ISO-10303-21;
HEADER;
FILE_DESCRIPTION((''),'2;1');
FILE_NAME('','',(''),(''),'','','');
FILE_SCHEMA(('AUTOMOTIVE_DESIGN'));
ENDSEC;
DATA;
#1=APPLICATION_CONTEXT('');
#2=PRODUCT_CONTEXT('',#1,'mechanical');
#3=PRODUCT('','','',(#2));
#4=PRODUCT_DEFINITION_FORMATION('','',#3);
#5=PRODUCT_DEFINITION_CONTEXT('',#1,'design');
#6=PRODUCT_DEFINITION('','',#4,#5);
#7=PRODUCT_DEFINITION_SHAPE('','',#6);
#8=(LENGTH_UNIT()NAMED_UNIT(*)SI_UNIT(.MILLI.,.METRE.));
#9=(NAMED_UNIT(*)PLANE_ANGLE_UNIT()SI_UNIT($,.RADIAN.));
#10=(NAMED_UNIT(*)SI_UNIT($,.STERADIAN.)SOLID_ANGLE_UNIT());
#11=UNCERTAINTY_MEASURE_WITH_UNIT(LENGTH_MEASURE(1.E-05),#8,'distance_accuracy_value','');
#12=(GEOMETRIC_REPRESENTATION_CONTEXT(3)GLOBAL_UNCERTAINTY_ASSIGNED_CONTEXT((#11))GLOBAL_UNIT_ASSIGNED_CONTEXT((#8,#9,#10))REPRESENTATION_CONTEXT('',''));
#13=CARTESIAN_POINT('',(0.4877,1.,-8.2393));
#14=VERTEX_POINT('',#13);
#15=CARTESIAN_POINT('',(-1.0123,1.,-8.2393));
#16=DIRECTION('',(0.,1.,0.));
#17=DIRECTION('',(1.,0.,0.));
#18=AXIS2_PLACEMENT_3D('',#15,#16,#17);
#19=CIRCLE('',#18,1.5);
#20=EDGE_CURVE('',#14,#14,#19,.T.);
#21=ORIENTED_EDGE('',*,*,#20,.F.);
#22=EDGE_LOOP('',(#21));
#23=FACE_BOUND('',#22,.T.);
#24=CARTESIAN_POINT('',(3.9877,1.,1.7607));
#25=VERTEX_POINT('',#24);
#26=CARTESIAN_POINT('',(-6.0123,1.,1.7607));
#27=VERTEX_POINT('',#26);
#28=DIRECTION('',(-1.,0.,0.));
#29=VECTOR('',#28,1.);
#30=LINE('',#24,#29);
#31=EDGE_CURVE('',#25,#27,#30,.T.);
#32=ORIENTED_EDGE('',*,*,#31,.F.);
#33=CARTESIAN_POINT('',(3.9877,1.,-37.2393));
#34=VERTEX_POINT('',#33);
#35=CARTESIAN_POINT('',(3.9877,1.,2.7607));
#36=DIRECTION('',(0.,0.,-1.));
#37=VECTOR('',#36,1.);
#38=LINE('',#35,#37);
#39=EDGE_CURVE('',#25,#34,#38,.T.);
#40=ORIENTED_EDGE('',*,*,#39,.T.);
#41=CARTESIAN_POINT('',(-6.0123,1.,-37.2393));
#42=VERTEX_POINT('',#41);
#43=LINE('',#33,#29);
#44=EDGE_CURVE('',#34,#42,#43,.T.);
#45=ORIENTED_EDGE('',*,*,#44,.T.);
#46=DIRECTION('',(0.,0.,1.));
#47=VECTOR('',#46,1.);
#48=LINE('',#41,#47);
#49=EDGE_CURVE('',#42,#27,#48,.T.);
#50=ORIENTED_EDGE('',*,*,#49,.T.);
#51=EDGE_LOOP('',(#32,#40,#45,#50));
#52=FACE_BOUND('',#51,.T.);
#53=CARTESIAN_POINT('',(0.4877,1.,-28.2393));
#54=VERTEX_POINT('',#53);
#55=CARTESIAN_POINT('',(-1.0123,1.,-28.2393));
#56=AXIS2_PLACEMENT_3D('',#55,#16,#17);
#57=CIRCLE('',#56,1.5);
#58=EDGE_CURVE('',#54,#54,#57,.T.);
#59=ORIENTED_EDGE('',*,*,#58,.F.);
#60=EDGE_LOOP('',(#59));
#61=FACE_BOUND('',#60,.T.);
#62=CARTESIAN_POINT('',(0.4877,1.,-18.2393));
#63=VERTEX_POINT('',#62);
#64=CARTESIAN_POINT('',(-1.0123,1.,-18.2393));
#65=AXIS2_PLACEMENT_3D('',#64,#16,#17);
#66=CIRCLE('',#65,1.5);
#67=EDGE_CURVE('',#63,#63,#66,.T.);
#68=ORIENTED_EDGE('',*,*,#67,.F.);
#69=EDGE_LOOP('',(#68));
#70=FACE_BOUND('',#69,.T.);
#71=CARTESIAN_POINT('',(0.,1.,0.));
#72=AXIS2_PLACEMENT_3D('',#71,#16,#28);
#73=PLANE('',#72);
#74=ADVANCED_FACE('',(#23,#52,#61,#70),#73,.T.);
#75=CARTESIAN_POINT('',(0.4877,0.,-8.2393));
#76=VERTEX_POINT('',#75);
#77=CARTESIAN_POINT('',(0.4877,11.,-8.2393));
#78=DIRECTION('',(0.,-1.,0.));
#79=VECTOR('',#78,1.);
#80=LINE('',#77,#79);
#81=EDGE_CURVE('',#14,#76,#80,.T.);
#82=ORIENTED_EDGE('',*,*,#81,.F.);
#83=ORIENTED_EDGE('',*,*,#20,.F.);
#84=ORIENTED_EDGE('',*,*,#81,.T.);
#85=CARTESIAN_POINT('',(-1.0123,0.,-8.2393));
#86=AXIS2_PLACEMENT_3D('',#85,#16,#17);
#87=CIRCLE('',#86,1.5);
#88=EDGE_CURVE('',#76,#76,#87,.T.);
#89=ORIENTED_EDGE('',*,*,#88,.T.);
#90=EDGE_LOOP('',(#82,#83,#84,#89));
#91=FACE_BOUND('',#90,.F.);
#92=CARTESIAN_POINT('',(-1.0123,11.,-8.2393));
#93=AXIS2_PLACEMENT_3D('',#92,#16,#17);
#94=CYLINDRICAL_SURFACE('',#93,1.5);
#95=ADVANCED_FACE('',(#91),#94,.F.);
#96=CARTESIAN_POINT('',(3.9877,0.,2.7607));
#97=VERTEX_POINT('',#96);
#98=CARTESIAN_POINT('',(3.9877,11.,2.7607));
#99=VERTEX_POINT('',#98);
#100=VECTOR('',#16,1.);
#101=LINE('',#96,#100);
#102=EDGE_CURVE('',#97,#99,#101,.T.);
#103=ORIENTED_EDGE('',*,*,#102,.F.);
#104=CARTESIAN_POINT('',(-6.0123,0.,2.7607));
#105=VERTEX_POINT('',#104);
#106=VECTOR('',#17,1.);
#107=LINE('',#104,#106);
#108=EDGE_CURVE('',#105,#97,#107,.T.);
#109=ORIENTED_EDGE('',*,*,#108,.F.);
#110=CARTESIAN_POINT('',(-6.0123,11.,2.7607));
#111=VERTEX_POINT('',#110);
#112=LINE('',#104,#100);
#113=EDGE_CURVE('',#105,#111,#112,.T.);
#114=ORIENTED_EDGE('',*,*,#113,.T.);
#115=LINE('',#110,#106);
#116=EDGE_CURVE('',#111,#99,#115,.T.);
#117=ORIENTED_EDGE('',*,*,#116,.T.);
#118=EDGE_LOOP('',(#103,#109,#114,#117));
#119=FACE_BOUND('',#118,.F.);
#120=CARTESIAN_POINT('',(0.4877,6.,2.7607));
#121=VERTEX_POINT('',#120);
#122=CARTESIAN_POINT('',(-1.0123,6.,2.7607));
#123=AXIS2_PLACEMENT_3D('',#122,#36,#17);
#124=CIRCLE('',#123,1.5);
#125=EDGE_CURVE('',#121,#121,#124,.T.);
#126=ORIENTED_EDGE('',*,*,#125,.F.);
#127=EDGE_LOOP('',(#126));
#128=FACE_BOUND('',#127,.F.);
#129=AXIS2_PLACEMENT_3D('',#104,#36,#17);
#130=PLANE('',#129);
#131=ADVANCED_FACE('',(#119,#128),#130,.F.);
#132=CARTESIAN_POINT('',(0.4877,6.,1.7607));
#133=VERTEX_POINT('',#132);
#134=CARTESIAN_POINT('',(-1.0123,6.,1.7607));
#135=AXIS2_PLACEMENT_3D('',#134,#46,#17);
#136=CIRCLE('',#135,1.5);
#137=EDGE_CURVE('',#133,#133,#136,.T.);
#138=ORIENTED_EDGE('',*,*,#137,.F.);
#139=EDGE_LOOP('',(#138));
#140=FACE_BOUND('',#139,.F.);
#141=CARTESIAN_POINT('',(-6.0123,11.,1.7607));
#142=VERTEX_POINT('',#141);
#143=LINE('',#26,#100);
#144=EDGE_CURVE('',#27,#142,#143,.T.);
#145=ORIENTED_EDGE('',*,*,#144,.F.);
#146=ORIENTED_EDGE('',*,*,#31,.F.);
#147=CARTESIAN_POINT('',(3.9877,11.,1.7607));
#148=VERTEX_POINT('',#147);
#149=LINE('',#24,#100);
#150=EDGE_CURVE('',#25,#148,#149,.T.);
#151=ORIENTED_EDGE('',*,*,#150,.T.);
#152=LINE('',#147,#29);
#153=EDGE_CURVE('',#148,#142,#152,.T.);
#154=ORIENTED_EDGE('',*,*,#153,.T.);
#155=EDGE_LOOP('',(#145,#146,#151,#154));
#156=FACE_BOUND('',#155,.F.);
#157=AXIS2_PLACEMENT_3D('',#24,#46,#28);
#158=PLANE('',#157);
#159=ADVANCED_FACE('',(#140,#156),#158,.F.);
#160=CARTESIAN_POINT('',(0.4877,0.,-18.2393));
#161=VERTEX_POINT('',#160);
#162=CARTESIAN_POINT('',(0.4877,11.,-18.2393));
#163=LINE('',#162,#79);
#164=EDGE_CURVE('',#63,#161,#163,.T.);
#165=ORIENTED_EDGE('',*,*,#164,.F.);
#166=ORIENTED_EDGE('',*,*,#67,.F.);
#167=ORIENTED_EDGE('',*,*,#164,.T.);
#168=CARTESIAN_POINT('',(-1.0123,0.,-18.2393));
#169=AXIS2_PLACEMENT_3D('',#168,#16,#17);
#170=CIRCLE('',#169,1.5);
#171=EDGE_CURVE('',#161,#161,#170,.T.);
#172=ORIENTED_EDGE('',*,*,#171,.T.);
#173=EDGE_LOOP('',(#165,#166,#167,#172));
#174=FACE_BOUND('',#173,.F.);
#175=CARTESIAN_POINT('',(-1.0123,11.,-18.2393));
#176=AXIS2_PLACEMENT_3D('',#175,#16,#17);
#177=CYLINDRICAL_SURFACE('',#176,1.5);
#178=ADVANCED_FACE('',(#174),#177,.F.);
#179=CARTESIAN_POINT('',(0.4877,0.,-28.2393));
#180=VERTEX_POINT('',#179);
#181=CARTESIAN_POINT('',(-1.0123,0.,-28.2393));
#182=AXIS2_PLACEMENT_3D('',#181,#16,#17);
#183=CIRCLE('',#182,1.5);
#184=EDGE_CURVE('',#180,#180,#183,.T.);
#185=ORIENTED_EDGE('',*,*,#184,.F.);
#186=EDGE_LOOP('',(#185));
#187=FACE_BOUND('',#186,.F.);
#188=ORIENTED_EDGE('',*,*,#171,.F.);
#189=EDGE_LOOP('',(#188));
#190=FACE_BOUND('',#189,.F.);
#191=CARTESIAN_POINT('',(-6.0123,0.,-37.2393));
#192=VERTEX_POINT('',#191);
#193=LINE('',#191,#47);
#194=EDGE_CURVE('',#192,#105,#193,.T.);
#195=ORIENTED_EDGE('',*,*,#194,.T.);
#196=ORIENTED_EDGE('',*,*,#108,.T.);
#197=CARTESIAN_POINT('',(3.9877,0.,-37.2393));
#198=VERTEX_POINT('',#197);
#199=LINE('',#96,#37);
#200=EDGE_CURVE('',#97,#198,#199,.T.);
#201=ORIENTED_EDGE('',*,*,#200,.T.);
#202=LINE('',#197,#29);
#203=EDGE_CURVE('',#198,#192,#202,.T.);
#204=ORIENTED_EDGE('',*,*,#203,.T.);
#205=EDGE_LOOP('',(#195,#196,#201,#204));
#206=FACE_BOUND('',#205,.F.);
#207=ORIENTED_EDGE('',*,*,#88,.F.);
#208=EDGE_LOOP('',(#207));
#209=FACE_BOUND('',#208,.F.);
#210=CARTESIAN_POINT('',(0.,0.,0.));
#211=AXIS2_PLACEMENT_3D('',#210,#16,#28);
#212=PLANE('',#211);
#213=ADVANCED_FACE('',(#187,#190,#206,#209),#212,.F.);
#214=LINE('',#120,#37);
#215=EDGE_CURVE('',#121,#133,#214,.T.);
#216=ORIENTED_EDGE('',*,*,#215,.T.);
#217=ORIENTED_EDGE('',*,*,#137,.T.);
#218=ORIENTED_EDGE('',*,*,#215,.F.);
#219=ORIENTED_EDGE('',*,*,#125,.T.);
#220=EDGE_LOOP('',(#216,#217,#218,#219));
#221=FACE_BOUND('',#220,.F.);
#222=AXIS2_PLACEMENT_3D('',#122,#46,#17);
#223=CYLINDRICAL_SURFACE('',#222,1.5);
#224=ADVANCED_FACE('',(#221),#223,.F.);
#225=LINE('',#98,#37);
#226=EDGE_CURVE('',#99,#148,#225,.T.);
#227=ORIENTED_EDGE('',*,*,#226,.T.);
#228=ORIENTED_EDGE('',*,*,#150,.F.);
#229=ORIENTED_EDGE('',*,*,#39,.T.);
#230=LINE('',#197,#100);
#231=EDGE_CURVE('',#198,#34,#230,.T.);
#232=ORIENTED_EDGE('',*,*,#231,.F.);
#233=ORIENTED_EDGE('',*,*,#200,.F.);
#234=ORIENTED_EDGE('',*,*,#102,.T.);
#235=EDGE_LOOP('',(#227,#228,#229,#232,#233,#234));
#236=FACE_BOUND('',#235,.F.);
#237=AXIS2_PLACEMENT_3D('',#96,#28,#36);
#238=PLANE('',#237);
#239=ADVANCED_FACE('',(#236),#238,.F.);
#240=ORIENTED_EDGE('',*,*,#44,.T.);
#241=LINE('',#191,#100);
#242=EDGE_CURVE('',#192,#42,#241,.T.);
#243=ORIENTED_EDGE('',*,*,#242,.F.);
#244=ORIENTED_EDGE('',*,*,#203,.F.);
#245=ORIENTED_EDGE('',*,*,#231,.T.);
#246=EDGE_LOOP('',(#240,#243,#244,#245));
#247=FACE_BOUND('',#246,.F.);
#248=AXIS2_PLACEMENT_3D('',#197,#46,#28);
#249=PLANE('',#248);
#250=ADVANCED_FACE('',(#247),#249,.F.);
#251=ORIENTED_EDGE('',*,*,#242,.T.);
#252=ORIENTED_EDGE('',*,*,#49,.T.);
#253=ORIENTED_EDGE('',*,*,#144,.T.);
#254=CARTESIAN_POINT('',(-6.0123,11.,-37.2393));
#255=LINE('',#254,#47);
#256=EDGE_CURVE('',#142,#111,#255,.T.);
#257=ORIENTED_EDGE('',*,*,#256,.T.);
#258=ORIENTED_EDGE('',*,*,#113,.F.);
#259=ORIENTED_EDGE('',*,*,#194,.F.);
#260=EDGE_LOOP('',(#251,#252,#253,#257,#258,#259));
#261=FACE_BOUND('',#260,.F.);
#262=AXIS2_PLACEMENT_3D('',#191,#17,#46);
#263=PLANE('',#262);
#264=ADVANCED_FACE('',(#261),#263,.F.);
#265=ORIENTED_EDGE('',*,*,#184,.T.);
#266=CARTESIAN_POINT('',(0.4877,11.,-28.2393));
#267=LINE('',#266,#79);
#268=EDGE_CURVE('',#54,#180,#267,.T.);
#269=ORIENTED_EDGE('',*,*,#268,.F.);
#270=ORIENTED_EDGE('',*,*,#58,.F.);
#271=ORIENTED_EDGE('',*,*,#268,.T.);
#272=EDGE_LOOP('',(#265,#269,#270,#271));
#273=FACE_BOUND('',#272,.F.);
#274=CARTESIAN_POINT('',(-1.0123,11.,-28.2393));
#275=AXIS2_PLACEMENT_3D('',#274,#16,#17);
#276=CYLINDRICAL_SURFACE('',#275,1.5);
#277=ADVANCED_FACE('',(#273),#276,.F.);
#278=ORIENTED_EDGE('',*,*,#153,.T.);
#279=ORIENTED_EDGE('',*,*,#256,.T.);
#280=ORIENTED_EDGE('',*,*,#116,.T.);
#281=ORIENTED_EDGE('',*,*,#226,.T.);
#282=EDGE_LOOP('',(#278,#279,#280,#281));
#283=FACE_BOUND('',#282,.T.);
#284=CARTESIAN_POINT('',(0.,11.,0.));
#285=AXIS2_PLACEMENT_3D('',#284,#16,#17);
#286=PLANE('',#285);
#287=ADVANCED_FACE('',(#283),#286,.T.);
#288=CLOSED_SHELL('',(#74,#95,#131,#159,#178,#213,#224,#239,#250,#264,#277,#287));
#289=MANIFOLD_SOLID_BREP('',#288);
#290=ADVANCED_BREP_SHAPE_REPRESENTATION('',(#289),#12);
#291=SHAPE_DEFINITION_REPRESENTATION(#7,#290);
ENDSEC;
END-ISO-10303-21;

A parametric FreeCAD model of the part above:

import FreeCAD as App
import Part
import Sketcher

V = App.Vector

doc = App.newDocument("Part")
body = doc.addObject("PartDesign::Body", "Body")

# Sketch on XZ plane
sketch1 = body.newObject("Sketcher::SketchObject", "Sketch")
sketch1.AttachmentSupport = (doc.getObject("XZ_Plane"), [""])
sketch1.MapMode = "FlatFace"
sketch1.addGeometry([
    Part.LineSegment(V(-6.0123, -37.2393, 0), V(-6.0123, 2.7607, 0)),
    Part.LineSegment(V(-6.0123, 2.7607, 0), V(3.9877, 2.7607, 0)),
    Part.LineSegment(V(3.9877, 2.7607, 0), V(3.9877, -37.2393, 0)),
    Part.LineSegment(V(3.9877, -37.2393, 0), V(-6.0123, -37.2393, 0)),
], False)
sketch1.addConstraint([
    Sketcher.Constraint("Coincident", 0, 2, 1, 1),
    Sketcher.Constraint("Coincident", 1, 2, 2, 1),
    Sketcher.Constraint("Coincident", 2, 2, 3, 1),
    Sketcher.Constraint("Coincident", 3, 2, 0, 1),
    Sketcher.Constraint("Vertical", 0),
    Sketcher.Constraint("Horizontal", 1),
    Sketcher.Constraint("Vertical", 2),
    Sketcher.Constraint("Horizontal", 3),
    Sketcher.Constraint("DistanceX", 1, 1, 1, 2, 10.0),
    Sketcher.Constraint("DistanceY", 0, 1, 0, 2, 40.0),
    Sketcher.Constraint("DistanceX", 0, 2, -1, 1, 6.0123),
    Sketcher.Constraint("DistanceY", -1, 1, 0, 2, 2.7607),
])
pad1 = body.newObject("PartDesign::Pad", "Pad")
pad1.Profile = sketch1
pad1.Length = 1
pad1.Reversed = True

# Sketch on XZ plane
sketch2 = body.newObject("Sketcher::SketchObject", "Sketch001")
sketch2.AttachmentSupport = (doc.getObject("XZ_Plane"), [""])
sketch2.MapMode = "FlatFace"
sketch2.AttachmentOffset = App.Placement(V(0, 0, -1), App.Rotation())
sketch2.addGeometry([
    Part.LineSegment(V(3.9877, 1.7607, 0), V(-6.0123, 1.7607, 0)),
    Part.LineSegment(V(-6.0123, 1.7607, 0), V(-6.0123, 2.7607, 0)),
    Part.LineSegment(V(-6.0123, 2.7607, 0), V(3.9877, 2.7607, 0)),
    Part.LineSegment(V(3.9877, 2.7607, 0), V(3.9877, 1.7607, 0)),
], False)
sketch2.addConstraint([
    Sketcher.Constraint("Coincident", 0, 2, 1, 1),
    Sketcher.Constraint("Coincident", 1, 2, 2, 1),
    Sketcher.Constraint("Coincident", 2, 2, 3, 1),
    Sketcher.Constraint("Coincident", 3, 2, 0, 1),
    Sketcher.Constraint("Horizontal", 0),
    Sketcher.Constraint("Vertical", 1),
    Sketcher.Constraint("Horizontal", 2),
    Sketcher.Constraint("Vertical", 3),
    Sketcher.Constraint("DistanceY", 1, 1, 1, 2, 1.0),
    Sketcher.Constraint("DistanceX", 0, 2, 0, 1, 10.0),
    Sketcher.Constraint("DistanceX", 0, 2, -1, 1, 6.0123),
    Sketcher.Constraint("DistanceY", -1, 1, 0, 2, 1.7607),
])
pad2 = body.newObject("PartDesign::Pad", "Pad001")
pad2.Profile = sketch2
pad2.Length = 10
pad2.Reversed = True

# Sketch on XZ plane
sketch3 = body.newObject("Sketcher::SketchObject", "Sketch002")
sketch3.AttachmentSupport = (doc.getObject("XZ_Plane"), [""])
sketch3.MapMode = "FlatFace"
sketch3.AttachmentOffset = App.Placement(V(0, 0, -11), App.Rotation())
sketch3.addGeometry([
    Part.Circle(V(-1.0123, -8.2393, 0), V(0, 0, 1), 1.5),
    Part.Circle(V(-1.0123, -28.2393, 0), V(0, 0, 1), 1.5),
    Part.Circle(V(-1.0123, -18.2393, 0), V(0, 0, 1), 1.5),
], False)
sketch3.addConstraint([
    Sketcher.Constraint("Equal", 0, 1),
    Sketcher.Constraint("Equal", 1, 2),
    Sketcher.Constraint("Vertical", 0, 3, 1, 3),
    Sketcher.Constraint("Vertical", 1, 3, 2, 3),
    Sketcher.Constraint("Diameter", 0, 3.0),
    Sketcher.Constraint("DistanceY", 2, 3, 0, 3, 10.0),
    Sketcher.Constraint("DistanceY", 1, 3, 2, 3, 10.0),
    Sketcher.Constraint("DistanceX", 0, 3, -1, 1, 1.0123),
    Sketcher.Constraint("DistanceY", 0, 3, -1, 1, 8.2393),
])
pocket1 = body.newObject("PartDesign::Pocket", "Pocket")
pocket1.Profile = sketch3
pocket1.Length = 100
pocket1.Reversed = True

# Sketch on XY plane
sketch4 = body.newObject("Sketcher::SketchObject", "Sketch003")
sketch4.AttachmentSupport = (doc.getObject("XY_Plane"), [""])
sketch4.MapMode = "FlatFace"
sketch4.AttachmentOffset = App.Placement(V(0, 0, 2.7607), App.Rotation())
sketch4.addGeometry(Part.Circle(V(-1.0123, 6, 0), V(0, 0, 1), 1.5), False)
sketch4.addConstraint([
    Sketcher.Constraint("Diameter", 0, 3.0),
    Sketcher.Constraint("DistanceY", -1, 1, 0, 3, 6.0),
    Sketcher.Constraint("DistanceX", 0, 3, -1, 1, 1.0123),
])
pocket2 = body.newObject("PartDesign::Pocket", "Pocket001")
pocket2.Profile = sketch4
pocket2.Length = 100

doc.recompute()
